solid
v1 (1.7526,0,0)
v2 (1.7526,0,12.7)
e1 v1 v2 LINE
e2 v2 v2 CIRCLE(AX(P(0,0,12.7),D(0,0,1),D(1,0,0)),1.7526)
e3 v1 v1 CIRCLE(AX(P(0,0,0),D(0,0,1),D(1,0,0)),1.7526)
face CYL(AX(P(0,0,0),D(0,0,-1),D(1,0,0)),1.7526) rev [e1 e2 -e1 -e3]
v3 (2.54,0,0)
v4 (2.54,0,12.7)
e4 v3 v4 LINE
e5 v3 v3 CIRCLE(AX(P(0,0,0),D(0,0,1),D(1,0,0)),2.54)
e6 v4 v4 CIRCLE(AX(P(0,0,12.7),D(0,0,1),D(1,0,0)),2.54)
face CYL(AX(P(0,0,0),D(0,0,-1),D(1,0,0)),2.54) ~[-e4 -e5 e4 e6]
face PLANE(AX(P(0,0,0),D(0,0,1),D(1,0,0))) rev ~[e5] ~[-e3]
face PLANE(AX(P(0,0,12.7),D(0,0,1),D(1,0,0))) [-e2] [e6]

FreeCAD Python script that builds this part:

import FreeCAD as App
import Part
import Sketcher

V = App.Vector
Q = App.Units.Quantity

doc = App.newDocument("Part")
body = doc.addObject("PartDesign::Body", "Body")

sketch1 = body.newObject("Sketcher::SketchObject", "Sketch")
sketch1.AttachmentSupport = (doc.getObject("XY_Plane"), [""])
sketch1.MapMode = "FlatFace"
sketch1.addGeometry(Part.Circle(V(0, 0, 0), V(0, 0, 1), 2.5), False)
sketch1.addGeometry(Part.Circle(V(0, 0, 0), V(0, 0, 1), 1.8), False)
sketch1.addConstraint(Sketcher.Constraint("Coincident", 0, 3, -1, 1))
sketch1.addConstraint(Sketcher.Constraint("Coincident", 1, 3, -1, 1))
sketch1.addConstraint(Sketcher.Constraint("Diameter", 0, Q("0.2 in")))
sketch1.addConstraint(Sketcher.Constraint("Diameter", 1, Q("0.138 in")))
pad1 = body.newObject("PartDesign::Pad", "Pad")
pad1.Profile = sketch1
pad1.Length = Q("0.5 in")

doc.recompute()
